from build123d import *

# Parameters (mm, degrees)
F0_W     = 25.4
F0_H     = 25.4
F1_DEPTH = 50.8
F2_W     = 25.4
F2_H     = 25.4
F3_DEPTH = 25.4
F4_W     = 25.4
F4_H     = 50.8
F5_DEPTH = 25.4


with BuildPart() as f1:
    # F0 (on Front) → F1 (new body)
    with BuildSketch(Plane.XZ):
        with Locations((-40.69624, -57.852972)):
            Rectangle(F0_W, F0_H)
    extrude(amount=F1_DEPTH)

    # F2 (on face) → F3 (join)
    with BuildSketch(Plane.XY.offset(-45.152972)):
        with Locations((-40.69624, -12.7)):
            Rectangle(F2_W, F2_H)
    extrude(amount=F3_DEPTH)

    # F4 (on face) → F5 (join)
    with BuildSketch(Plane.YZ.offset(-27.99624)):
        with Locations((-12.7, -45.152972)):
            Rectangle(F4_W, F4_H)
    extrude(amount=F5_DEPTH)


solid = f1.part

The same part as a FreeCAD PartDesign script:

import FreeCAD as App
import Part
import Sketcher
Q = App.Units.Quantity

doc = App.newDocument("Part")
params = doc.addObject("Spreadsheet::Sheet", "Params")
for row, (alias, value) in enumerate([
    ("sketch1_width", "1 in"),
    ("pad1_length", "2 in"),
    ("sketch2_width", "1 in"),
    ("pad2_length", "1 in"),
    ("sketch3_width", "1 in"),
    ("sketch3_height", "2 in"),
    ("pad3_length", "1 in"),
], start=1):
    params.set(f"A{row}", alias)
    params.set(f"B{row}", "=" + value)
    params.setAlias(f"B{row}", alias)

body = doc.addObject("PartDesign::Body", "Body")

# Sketch on XZ plane
sketch1 = body.newObject("Sketcher::SketchObject", "Sketch")
sketch1.AttachmentSupport = (doc.getObject("XZ_Plane"), [""])
sketch1.MapMode = "FlatFace"
sketch1.addGeometry([
    Part.LineSegment(App.Vector(-53, -45, 0), App.Vector(-53, -71, 0)),
    Part.LineSegment(App.Vector(-53, -71, 0), App.Vector(-28, -71, 0)),
    Part.LineSegment(App.Vector(-28, -71, 0), App.Vector(-28, -45, 0)),
    Part.LineSegment(App.Vector(-28, -45, 0), App.Vector(-53, -45, 0)),
], False)
sketch1.addConstraint([
    Sketcher.Constraint("Coincident", 0, 2, 1, 1),
    Sketcher.Constraint("Coincident", 1, 2, 2, 1),
    Sketcher.Constraint("Coincident", 2, 2, 3, 1),
    Sketcher.Constraint("Coincident", 3, 2, 0, 1),
    Sketcher.Constraint("Vertical", 0),
    Sketcher.Constraint("Horizontal", 1),
    Sketcher.Constraint("Vertical", 2),
    Sketcher.Constraint("Horizontal", 3),
    Sketcher.Constraint("Equal", 3, 0),
    Sketcher.Constraint("DistanceX", 1, 1, 1, 2, Q("1 in")),
    Sketcher.Constraint("DistanceX", 0, 2, -1, 1, 53.39624),
    Sketcher.Constraint("DistanceY", 0, 2, -1, 1, 70.552972),
])
sketch1.setExpression("Constraints[9]", "Params.sketch1_width")
pad1 = body.newObject("PartDesign::Pad", "Pad")
pad1.Profile = sketch1
pad1.setExpression("Length", "Params.pad1_length")

# Sketch on XY plane
sketch2 = body.newObject("Sketcher::SketchObject", "Sketch001")
sketch2.AttachmentSupport = (doc.getObject("XY_Plane"), [""])
sketch2.MapMode = "FlatFace"
sketch2.AttachmentOffset = App.Placement(App.Vector(0, 0, -45.152972), App.Rotation())
sketch2.addGeometry([
    Part.LineSegment(App.Vector(-53, 0, 0), App.Vector(-53, -25, 0)),
    Part.LineSegment(App.Vector(-53, -25, 0), App.Vector(-28, -25, 0)),
    Part.LineSegment(App.Vector(-28, -25, 0), App.Vector(-28, 0, 0)),
    Part.LineSegment(App.Vector(-28, 0, 0), App.Vector(-53, 0, 0)),
], False)
sketch2.addConstraint([
    Sketcher.Constraint("Coincident", 0, 2, 1, 1),
    Sketcher.Constraint("Coincident", 1, 2, 2, 1),
    Sketcher.Constraint("Coincident", 2, 2, 3, 1),
    Sketcher.Constraint("Coincident", 3, 2, 0, 1),
    Sketcher.Constraint("Vertical", 0),
    Sketcher.Constraint("Horizontal", 1),
    Sketcher.Constraint("Vertical", 2),
    Sketcher.Constraint("Horizontal", 3),
    Sketcher.Constraint("PointOnObject", 2, 2, -1),
    Sketcher.Constraint("Equal", 3, 0),
    Sketcher.Constraint("DistanceX", 1, 1, 1, 2, Q("1 in")),
    Sketcher.Constraint("DistanceX", 0, 2, -1, 1, 53.39624),
])
sketch2.setExpression("Constraints[10]", "Params.sketch2_width")
pad2 = body.newObject("PartDesign::Pad", "Pad001")
pad2.Profile = sketch2
pad2.setExpression("Length", "Params.pad2_length")

# Sketch on YZ plane
sketch3 = body.newObject("Sketcher::SketchObject", "Sketch002")
sketch3.AttachmentSupport = (doc.getObject("YZ_Plane"), [""])
sketch3.MapMode = "FlatFace"
sketch3.AttachmentOffset = App.Placement(App.Vector(0, 0, -27.99624), App.Rotation())
sketch3.addGeometry([
    Part.LineSegment(App.Vector(-25, -20, 0), App.Vector(-25, -71, 0)),
    Part.LineSegment(App.Vector(-25, -71, 0), App.Vector(0, -71, 0)),
    Part.LineSegment(App.Vector(0, -71, 0), App.Vector(0, -20, 0)),
    Part.LineSegment(App.Vector(0, -20, 0), App.Vector(-25, -20, 0)),
], False)
sketch3.addConstraint([
    Sketcher.Constraint("Coincident", 0, 2, 1, 1),
    Sketcher.Constraint("Coincident", 1, 2, 2, 1),
    Sketcher.Constraint("Coincident", 2, 2, 3, 1),
    Sketcher.Constraint("Coincident", 3, 2, 0, 1),
    Sketcher.Constraint("Vertical", 0),
    Sketcher.Constraint("Horizontal", 1),
    Sketcher.Constraint("Vertical", 2),
    Sketcher.Constraint("Horizontal", 3),
    Sketcher.Constraint("PointOnObject", 1, 2, -2),
    Sketcher.Constraint("DistanceX", 1, 1, 1, 2, Q("1 in")),
    Sketcher.Constraint("DistanceY", 0, 2, 0, 1, Q("2 in")),
    Sketcher.Constraint("DistanceY", 0, 2, -1, 1, 70.552972),
])
sketch3.setExpression("Constraints[9]", "Params.sketch3_width")
sketch3.setExpression("Constraints[10]", "Params.sketch3_height")
pad3 = body.newObject("PartDesign::Pad", "Pad002")
pad3.Profile = sketch3
pad3.setExpression("Length", "Params.pad3_length")

doc.recompute()
